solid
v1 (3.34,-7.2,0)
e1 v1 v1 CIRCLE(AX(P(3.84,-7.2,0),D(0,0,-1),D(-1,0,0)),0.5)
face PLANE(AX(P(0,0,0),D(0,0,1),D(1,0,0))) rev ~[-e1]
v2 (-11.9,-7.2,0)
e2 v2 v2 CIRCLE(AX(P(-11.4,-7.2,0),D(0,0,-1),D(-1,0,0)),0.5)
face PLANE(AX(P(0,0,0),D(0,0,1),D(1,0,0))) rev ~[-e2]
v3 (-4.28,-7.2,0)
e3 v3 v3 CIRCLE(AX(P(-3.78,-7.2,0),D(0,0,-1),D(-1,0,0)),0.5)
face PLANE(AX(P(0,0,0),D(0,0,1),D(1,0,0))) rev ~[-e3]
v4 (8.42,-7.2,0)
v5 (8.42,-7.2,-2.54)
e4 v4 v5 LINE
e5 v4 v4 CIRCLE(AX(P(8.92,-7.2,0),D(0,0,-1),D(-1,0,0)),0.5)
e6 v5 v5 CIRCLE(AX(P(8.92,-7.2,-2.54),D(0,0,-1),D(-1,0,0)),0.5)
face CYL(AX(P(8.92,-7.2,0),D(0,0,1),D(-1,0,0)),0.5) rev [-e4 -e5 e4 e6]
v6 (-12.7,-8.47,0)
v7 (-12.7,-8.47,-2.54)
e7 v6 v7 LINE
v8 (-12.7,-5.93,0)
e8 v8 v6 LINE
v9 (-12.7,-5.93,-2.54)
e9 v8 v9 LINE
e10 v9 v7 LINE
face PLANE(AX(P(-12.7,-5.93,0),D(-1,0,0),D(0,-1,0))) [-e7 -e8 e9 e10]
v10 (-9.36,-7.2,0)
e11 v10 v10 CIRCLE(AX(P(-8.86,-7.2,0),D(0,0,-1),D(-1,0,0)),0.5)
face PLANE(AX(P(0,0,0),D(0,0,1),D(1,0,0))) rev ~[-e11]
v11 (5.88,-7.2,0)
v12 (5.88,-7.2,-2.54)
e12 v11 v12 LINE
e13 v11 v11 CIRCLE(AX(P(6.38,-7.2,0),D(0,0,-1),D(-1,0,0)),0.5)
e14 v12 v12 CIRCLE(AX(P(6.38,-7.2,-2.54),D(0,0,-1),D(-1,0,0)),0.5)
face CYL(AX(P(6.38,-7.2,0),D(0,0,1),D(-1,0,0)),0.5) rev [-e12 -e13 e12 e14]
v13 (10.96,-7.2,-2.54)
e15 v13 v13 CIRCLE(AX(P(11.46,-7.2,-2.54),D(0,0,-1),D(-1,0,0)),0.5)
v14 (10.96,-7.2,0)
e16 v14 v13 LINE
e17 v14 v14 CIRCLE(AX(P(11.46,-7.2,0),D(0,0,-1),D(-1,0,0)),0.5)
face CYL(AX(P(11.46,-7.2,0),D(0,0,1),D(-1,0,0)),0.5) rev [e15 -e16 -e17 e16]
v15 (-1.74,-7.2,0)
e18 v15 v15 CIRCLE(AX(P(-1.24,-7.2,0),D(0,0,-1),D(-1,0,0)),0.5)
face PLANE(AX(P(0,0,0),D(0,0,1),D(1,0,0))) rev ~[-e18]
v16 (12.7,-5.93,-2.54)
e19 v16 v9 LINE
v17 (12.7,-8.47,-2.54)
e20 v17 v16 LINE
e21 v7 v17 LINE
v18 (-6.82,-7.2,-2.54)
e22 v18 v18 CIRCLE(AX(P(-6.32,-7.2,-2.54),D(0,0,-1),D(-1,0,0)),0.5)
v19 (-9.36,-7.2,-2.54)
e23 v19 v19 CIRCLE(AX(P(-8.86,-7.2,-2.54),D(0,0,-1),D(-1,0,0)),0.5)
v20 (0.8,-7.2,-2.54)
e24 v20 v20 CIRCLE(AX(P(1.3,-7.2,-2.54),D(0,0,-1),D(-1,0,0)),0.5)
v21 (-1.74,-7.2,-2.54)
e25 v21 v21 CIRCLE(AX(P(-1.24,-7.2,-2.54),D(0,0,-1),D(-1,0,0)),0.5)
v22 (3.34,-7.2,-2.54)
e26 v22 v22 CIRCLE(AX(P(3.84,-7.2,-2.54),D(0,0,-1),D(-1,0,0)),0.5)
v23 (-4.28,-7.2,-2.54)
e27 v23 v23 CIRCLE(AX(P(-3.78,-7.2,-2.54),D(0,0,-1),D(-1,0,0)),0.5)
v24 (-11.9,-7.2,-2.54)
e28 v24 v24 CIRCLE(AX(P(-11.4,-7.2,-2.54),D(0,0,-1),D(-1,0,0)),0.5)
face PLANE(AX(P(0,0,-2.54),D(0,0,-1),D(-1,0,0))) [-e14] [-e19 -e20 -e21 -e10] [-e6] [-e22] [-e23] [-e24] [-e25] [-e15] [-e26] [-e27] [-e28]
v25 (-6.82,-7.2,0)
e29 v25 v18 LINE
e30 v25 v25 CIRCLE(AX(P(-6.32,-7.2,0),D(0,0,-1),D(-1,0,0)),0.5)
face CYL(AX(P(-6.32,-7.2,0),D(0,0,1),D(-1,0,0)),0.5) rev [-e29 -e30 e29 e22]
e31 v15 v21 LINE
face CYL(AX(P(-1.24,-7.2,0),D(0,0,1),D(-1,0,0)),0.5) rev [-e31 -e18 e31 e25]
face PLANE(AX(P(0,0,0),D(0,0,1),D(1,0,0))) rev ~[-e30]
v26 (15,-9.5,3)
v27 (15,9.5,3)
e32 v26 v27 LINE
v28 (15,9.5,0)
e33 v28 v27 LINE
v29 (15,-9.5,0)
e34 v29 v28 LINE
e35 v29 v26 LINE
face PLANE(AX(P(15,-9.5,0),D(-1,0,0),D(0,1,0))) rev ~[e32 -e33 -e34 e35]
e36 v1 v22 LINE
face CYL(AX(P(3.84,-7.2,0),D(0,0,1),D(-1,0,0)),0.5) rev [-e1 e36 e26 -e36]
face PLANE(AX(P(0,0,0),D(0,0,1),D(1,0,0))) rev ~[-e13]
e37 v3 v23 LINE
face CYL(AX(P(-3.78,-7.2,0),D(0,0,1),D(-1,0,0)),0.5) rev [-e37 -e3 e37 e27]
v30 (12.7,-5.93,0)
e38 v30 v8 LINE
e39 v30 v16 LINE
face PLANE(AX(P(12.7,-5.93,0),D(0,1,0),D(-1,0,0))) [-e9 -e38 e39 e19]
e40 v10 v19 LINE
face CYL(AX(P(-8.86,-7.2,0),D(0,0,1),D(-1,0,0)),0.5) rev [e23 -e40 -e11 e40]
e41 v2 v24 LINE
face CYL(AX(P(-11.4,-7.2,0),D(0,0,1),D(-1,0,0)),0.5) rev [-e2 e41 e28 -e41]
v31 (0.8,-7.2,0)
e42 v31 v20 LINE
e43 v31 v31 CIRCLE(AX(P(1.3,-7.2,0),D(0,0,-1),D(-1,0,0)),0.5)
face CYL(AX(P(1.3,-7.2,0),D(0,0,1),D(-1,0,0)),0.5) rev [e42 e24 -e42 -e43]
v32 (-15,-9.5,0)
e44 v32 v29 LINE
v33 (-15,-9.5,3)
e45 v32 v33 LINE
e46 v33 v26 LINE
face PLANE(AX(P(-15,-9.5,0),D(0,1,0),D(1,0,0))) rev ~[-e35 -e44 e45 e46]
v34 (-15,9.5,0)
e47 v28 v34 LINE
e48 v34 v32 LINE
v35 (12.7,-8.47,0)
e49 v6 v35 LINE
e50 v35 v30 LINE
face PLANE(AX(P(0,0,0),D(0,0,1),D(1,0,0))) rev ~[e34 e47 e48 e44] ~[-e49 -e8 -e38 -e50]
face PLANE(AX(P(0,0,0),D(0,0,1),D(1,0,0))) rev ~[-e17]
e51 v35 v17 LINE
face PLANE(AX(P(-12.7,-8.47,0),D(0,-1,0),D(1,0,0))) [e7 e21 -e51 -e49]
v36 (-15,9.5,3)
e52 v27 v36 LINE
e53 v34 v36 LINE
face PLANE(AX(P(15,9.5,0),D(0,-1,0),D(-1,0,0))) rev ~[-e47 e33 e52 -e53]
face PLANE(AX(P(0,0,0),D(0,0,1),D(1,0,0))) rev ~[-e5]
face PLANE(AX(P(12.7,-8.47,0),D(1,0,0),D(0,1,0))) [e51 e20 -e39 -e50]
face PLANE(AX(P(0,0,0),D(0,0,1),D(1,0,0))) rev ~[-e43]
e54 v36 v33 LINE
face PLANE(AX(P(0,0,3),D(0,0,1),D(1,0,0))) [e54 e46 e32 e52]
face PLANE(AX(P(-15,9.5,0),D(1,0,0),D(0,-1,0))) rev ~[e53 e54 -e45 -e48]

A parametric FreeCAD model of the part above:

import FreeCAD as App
import Part
import Sketcher

V = App.Vector
Q = App.Units.Quantity


def add_polygon(sketch, points):
    """Adds a closed chain of lines whose ends are joined by coincident constraints."""
    first, n = sketch.GeometryCount, len(points)
    for a, b in zip(points, points[1:] + points[:1]):
        sketch.addGeometry(Part.LineSegment(App.Vector(*a, 0), App.Vector(*b, 0)), False)
    for i in range(n):
        sketch.addConstraint(Sketcher.Constraint("Coincident", first + i, 2, first + (i + 1) % n, 1))

doc = App.newDocument("Part")
body = doc.addObject("PartDesign::Body", "Body")

# Sketch on XY plane
sketch1 = body.newObject("Sketcher::SketchObject", "Sketch")
sketch1.AttachmentSupport = (doc.getObject("XY_Plane"), [""])
sketch1.MapMode = "FlatFace"
add_polygon(sketch1, [(-15, 9.5), (-15, -9.5), (15, -9.5), (15, 9.5)])  # lines 0-3
sketch1.addConstraint([
    Sketcher.Constraint("Vertical", 0),
    Sketcher.Constraint("Horizontal", 1),
    Sketcher.Constraint("Vertical", 2),
    Sketcher.Constraint("Horizontal", 3),
    Sketcher.Constraint("Symmetric", 0, 2, 2, 2, -1, 1),
    Sketcher.Constraint("DistanceX", 1, 1, 1, 2, Q("30 mm")),
    Sketcher.Constraint("DistanceY", 0, 2, 0, 1, Q("19 mm")),
])
pad1 = body.newObject("PartDesign::Pad", "Pad")
pad1.Profile = sketch1
pad1.Length = 3

# Sketch on XY plane
sketch2 = body.newObject("Sketcher::SketchObject", "Sketch001")
sketch2.AttachmentSupport = (doc.getObject("XY_Plane"), [""])
sketch2.MapMode = "FlatFace"
add_polygon(sketch2, [(-12.7, -5.93), (12.7, -5.93), (12.7, -8.47), (-12.7, -8.47)])  # lines 0-3
sketch2.addGeometry(Part.Circle(V(11.46, -7.2, 0), V(0, 0, 1), 0.5), False)  # 4
sketch2.addGeometry(Part.Circle(V(8.92, -7.2, 0), V(0, 0, 1), 0.5), False)  # 5
sketch2.addGeometry(Part.Circle(V(6.38, -7.2, 0), V(0, 0, 1), 0.5), False)  # 6
sketch2.addGeometry(Part.Circle(V(3.84, -7.2, 0), V(0, 0, 1), 0.5), False)  # 7
sketch2.addGeometry(Part.Circle(V(1.3, -7.2, 0), V(0, 0, 1), 0.5), False)  # 8
sketch2.addGeometry(Part.Circle(V(-1.24, -7.2, 0), V(0, 0, 1), 0.5), False)  # 9
sketch2.addGeometry(Part.Circle(V(-3.78, -7.2, 0), V(0, 0, 1), 0.5), False)  # 10
sketch2.addGeometry(Part.Circle(V(-6.32, -7.2, 0), V(0, 0, 1), 0.5), False)  # 11
sketch2.addGeometry(Part.Circle(V(-8.86, -7.2, 0), V(0, 0, 1), 0.5), False)  # 12
sketch2.addGeometry(Part.Circle(V(-11.4, -7.2, 0), V(0, 0, 1), 0.5), False)  # 13
sketch2.addConstraint([
    Sketcher.Constraint("Horizontal", 0),
    Sketcher.Constraint("Vertical", 1),
    Sketcher.Constraint("Horizontal", 2),
    Sketcher.Constraint("Vertical", 3),
    Sketcher.Constraint("Equal", 4, 5),
    Sketcher.Constraint("Equal", 5, 6),
    Sketcher.Constraint("Equal", 6, 7),
    Sketcher.Constraint("Equal", 7, 8),
    Sketcher.Constraint("Equal", 8, 9),
    Sketcher.Constraint("Equal", 9, 10),
    Sketcher.Constraint("Equal", 10, 11),
    Sketcher.Constraint("Equal", 11, 12),
    Sketcher.Constraint("Equal", 12, 13),
    Sketcher.Constraint("Horizontal", 4, 3, 5, 3),
    Sketcher.Constraint("Horizontal", 5, 3, 6, 3),
    Sketcher.Constraint("Horizontal", 6, 3, 7, 3),
    Sketcher.Constraint("Horizontal", 7, 3, 8, 3),
    Sketcher.Constraint("Horizontal", 8, 3, 9, 3),
    Sketcher.Constraint("Horizontal", 9, 3, 10, 3),
    Sketcher.Constraint("Horizontal", 10, 3, 11, 3),
    Sketcher.Constraint("Horizontal", 11, 3, 12, 3),
    Sketcher.Constraint("Horizontal", 12, 3, 13, 3),
    Sketcher.Constraint("Diameter", 4, Q("1 mm")),
    Sketcher.Constraint("DistanceX", 0, 1, 0, 2, Q("25.4 mm")),
    Sketcher.Constraint("DistanceY", 1, 2, 1, 1, Q("2.54 mm")),
    Sketcher.Constraint("DistanceX", 5, 3, 4, 3, Q("2.54 mm")),
    Sketcher.Constraint("DistanceX", 6, 3, 5, 3, Q("2.54 mm")),
    Sketcher.Constraint("DistanceX", 7, 3, 6, 3, Q("2.54 mm")),
    Sketcher.Constraint("DistanceX", 8, 3, 7, 3, Q("2.54 mm")),
    Sketcher.Constraint("DistanceX", 9, 3, 8, 3, Q("2.54 mm")),
    Sketcher.Constraint("DistanceX", 10, 3, 9, 3, Q("2.54 mm")),
    Sketcher.Constraint("DistanceX", 11, 3, 10, 3, Q("2.54 mm")),
    Sketcher.Constraint("DistanceX", 12, 3, 11, 3, Q("2.54 mm")),
    Sketcher.Constraint("DistanceX", 13, 3, 12, 3, Q("2.54 mm")),
    Sketcher.Constraint("DistanceY", 4, 3, -1, 1, Q("7.2 mm")),
    Sketcher.Constraint("DistanceX", -1, 1, 8, 3, Q("1.3 mm")),
    Sketcher.Constraint("DistanceX", -1, 1, 0, 2, Q("12.7 mm")),
    Sketcher.Constraint("DistanceY", 0, 2, -1, 1, Q("5.93 mm")),
])
pad2 = body.newObject("PartDesign::Pad", "Pad001")
pad2.Profile = sketch2
pad2.Length = 2.54
pad2.Reversed = True

doc.recompute()
